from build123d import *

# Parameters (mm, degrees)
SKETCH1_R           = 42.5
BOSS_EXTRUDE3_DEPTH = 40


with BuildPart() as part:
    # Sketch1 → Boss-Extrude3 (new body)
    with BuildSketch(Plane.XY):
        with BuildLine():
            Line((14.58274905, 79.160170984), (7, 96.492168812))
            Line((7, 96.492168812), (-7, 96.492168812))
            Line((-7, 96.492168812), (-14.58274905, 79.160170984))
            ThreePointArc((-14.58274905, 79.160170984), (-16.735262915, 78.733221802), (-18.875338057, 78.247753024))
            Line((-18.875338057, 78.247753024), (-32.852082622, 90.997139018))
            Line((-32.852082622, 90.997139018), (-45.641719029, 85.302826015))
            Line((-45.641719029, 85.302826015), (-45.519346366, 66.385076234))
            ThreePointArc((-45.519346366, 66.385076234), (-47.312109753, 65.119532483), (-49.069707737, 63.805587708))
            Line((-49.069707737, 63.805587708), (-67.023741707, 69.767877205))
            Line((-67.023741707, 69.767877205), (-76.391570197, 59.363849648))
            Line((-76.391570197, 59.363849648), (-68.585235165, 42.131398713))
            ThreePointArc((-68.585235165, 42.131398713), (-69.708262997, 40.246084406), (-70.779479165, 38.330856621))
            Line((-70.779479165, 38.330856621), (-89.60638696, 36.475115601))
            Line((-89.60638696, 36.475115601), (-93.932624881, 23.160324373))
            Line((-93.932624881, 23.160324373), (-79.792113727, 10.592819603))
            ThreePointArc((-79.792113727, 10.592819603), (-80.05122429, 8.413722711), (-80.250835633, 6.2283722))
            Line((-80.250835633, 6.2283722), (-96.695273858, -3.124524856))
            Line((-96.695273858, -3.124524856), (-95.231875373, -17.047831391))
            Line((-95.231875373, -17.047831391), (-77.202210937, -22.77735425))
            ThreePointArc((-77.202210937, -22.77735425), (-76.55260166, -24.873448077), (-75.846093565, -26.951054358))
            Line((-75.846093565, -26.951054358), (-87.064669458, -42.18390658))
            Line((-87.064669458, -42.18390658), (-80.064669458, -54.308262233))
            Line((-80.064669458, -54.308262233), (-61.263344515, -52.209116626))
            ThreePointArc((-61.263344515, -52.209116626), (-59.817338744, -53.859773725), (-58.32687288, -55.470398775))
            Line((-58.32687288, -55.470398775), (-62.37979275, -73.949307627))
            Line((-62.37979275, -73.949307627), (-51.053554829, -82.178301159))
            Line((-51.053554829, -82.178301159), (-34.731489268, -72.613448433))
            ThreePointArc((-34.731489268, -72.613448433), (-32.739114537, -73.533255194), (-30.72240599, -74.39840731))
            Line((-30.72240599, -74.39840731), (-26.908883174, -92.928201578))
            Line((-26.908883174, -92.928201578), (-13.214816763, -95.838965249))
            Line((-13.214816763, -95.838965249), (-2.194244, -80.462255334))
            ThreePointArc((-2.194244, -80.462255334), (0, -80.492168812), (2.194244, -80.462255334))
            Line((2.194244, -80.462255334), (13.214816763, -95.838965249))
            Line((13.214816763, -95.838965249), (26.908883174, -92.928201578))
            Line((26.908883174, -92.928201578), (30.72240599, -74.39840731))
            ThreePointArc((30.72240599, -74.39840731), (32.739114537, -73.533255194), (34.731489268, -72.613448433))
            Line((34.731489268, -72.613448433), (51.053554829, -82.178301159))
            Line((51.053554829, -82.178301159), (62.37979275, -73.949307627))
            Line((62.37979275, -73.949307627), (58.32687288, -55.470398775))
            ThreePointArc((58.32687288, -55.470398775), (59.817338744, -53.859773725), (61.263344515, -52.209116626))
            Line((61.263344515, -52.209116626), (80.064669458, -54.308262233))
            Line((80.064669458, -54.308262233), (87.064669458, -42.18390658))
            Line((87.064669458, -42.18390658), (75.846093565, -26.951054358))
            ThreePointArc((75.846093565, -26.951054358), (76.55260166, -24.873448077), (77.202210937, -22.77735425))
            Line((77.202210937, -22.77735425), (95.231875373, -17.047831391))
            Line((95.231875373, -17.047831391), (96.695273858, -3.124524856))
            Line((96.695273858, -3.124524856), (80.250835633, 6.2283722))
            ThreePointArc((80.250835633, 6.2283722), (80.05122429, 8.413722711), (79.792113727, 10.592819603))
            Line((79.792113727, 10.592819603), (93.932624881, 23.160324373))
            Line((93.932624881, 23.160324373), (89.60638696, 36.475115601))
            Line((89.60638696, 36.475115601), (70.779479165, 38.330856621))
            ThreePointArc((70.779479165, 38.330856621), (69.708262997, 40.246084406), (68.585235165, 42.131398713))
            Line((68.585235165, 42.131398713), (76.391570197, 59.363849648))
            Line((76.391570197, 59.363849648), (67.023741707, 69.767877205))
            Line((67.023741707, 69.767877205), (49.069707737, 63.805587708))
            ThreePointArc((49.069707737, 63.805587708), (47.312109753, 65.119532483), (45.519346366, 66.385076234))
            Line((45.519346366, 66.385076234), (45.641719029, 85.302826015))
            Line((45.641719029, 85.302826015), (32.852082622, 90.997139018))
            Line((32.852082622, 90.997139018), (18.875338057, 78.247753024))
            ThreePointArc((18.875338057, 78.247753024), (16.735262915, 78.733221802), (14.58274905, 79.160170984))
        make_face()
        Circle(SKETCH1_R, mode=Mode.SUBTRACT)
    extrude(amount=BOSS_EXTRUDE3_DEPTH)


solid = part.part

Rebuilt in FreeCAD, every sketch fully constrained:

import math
import FreeCAD as App
import Part
import Sketcher

V = App.Vector
Q = App.Units.Quantity

doc = App.newDocument("Part")
body = doc.addObject("PartDesign::Body", "Body")

# Sketch on XY plane
sketch1 = doc.addObject("Sketcher::SketchObject", "Sketch")
body.addObject(sketch1)
sketch1.AttachmentSupport = (doc.XY_Plane, [""])
sketch1.MapMode = "FlatFace"
sketch1.addGeometry(Part.LineSegment(V(14.582749, 79.160171, 0), V(7, 96.492169, 0)), False)
sketch1.addGeometry(Part.LineSegment(V(7, 96.492169, 0), V(-7, 96.492169, 0)), False)
sketch1.addGeometry(Part.LineSegment(V(-7, 96.492169, 0), V(-14.582749, 79.160171, 0)), False)
sketch1.addGeometry(Part.ArcOfCircle(Part.Circle(V(0, 0.000001, 0), V(0, 0, 1), 80.492167), math.radians(100.437904), math.radians(103.562096)), False)
sketch1.addGeometry(Part.LineSegment(V(-18.875338, 78.247753, 0), V(-32.852083, 90.997139, 0)), False)
sketch1.addGeometry(Part.LineSegment(V(-32.852083, 90.997139, 0), V(-45.641719, 85.302826, 0)), False)
sketch1.addGeometry(Part.LineSegment(V(-45.641719, 85.302826, 0), V(-45.519346, 66.385076, 0)), False)
sketch1.addGeometry(Part.ArcOfCircle(Part.Circle(V(0.000001, -0.000001, 0), V(0, 0, 1), 80.49217), math.radians(124.437904), math.radians(127.562096)), False)
sketch1.addGeometry(Part.LineSegment(V(-49.069708, 63.805588, 0), V(-67.023742, 69.767877, 0)), False)
sketch1.addGeometry(Part.LineSegment(V(-67.023742, 69.767877, 0), V(-76.39157, 59.36385, 0)), False)
sketch1.addGeometry(Part.LineSegment(V(-76.39157, 59.36385, 0), V(-68.585235, 42.131399, 0)), False)
sketch1.addGeometry(Part.ArcOfCircle(Part.Circle(V(0.000001, -0.000001, 0), V(0, 0, 1), 80.49217), math.radians(148.437904), math.radians(151.562096)), False)
sketch1.addGeometry(Part.LineSegment(V(-70.779479, 38.330857, 0), V(-89.606387, 36.475116, 0)), False)
sketch1.addGeometry(Part.LineSegment(V(-89.606387, 36.475116, 0), V(-93.932625, 23.160324, 0)), False)
sketch1.addGeometry(Part.LineSegment(V(-93.932625, 23.160324, 0), V(-79.792114, 10.59282, 0)), False)
sketch1.addGeometry(Part.ArcOfCircle(Part.Circle(V(-0.000001, 0, 0), V(0, 0, 1), 80.492168), math.radians(172.437904), math.radians(175.562096)), False)
sketch1.addGeometry(Part.LineSegment(V(-80.250836, 6.228372, 0), V(-96.695274, -3.124525, 0)), False)
sketch1.addGeometry(Part.LineSegment(V(-96.695274, -3.124525, 0), V(-95.231875, -17.047831, 0)), False)
sketch1.addGeometry(Part.LineSegment(V(-95.231875, -17.047831, 0), V(-77.202211, -22.777354, 0)), False)
sketch1.addGeometry(Part.ArcOfCircle(Part.Circle(V(0, 0, 0), V(0, 0, 1), 80.492168), math.radians(-163.562096), math.radians(-160.437904)), False)
sketch1.addGeometry(Part.LineSegment(V(-75.846094, -26.951054, 0), V(-87.064669, -42.183907, 0)), False)
sketch1.addGeometry(Part.LineSegment(V(-87.064669, -42.183907, 0), V(-80.064669, -54.308262, 0)), False)
sketch1.addGeometry(Part.LineSegment(V(-80.064669, -54.308262, 0), V(-61.263345, -52.209117, 0)), False)
sketch1.addGeometry(Part.ArcOfCircle(Part.Circle(V(0, 0, 0), V(0, 0, 1), 80.492169), math.radians(-139.562096), math.radians(-136.437904)), False)
sketch1.addGeometry(Part.LineSegment(V(-58.326873, -55.470399, 0), V(-62.379793, -73.949308, 0)), False)
sketch1.addGeometry(Part.LineSegment(V(-62.379793, -73.949308, 0), V(-51.053555, -82.178301, 0)), False)
sketch1.addGeometry(Part.LineSegment(V(-51.053555, -82.178301, 0), V(-34.731489, -72.613448, 0)), False)
sketch1.addGeometry(Part.ArcOfCircle(Part.Circle(V(0, 0, 0), V(0, 0, 1), 80.492169), math.radians(-115.562096), math.radians(-112.437904)), False)
sketch1.addGeometry(Part.LineSegment(V(-30.722406, -74.398407, 0), V(-26.908883, -92.928202, 0)), False)
sketch1.addGeometry(Part.LineSegment(V(-26.908883, -92.928202, 0), V(-13.214817, -95.838965, 0)), False)
sketch1.addGeometry(Part.LineSegment(V(-13.214817, -95.838965, 0), V(-2.194244, -80.462255, 0)), False)
sketch1.addGeometry(Part.ArcOfCircle(Part.Circle(V(0, 0.000002, 0), V(0, 0, 1), 80.492171), math.radians(-91.562096), math.radians(-88.437904)), False)
sketch1.addGeometry(Part.LineSegment(V(2.194244, -80.462255, 0), V(13.214817, -95.838965, 0)), False)
sketch1.addGeometry(Part.LineSegment(V(13.214817, -95.838965, 0), V(26.908883, -92.928202, 0)), False)
sketch1.addGeometry(Part.LineSegment(V(26.908883, -92.928202, 0), V(30.722406, -74.398407, 0)), False)
sketch1.addGeometry(Part.ArcOfCircle(Part.Circle(V(0, 0, 0), V(0, 0, 1), 80.492169), math.radians(-67.562096), math.radians(-64.437904)), False)
sketch1.addGeometry(Part.LineSegment(V(34.731489, -72.613448, 0), V(51.053555, -82.178301, 0)), False)
sketch1.addGeometry(Part.LineSegment(V(51.053555, -82.178301, 0), V(62.379793, -73.949308, 0)), False)
sketch1.addGeometry(Part.LineSegment(V(62.379793, -73.949308, 0), V(58.326873, -55.470399, 0)), False)
sketch1.addGeometry(Part.ArcOfCircle(Part.Circle(V(0, 0, 0), V(0, 0, 1), 80.492169), math.radians(-43.562096), math.radians(-40.437904)), False)
sketch1.addGeometry(Part.LineSegment(V(61.263345, -52.209117, 0), V(80.064669, -54.308262, 0)), False)
sketch1.addGeometry(Part.LineSegment(V(80.064669, -54.308262, 0), V(87.064669, -42.183907, 0)), False)
sketch1.addGeometry(Part.LineSegment(V(87.064669, -42.183907, 0), V(75.846094, -26.951054, 0)), False)
sketch1.addGeometry(Part.ArcOfCircle(Part.Circle(V(0, 0, 0), V(0, 0, 1), 80.492168), math.radians(-19.562096), math.radians(-16.437904)), False)
sketch1.addGeometry(Part.LineSegment(V(77.202211, -22.777354, 0), V(95.231875, -17.047831, 0)), False)
sketch1.addGeometry(Part.LineSegment(V(95.231875, -17.047831, 0), V(96.695274, -3.124525, 0)), False)
sketch1.addGeometry(Part.LineSegment(V(96.695274, -3.124525, 0), V(80.250836, 6.228372, 0)), False)
sketch1.addGeometry(Part.ArcOfCircle(Part.Circle(V(0.000001, 0, 0), V(0, 0, 1), 80.492168), math.radians(4.437904), math.radians(7.562096)), False)
sketch1.addGeometry(Part.LineSegment(V(79.792114, 10.59282, 0), V(93.932625, 23.160324, 0)), False)
sketch1.addGeometry(Part.LineSegment(V(93.932625, 23.160324, 0), V(89.606387, 36.475116, 0)), False)
sketch1.addGeometry(Part.LineSegment(V(89.606387, 36.475116, 0), V(70.779479, 38.330857, 0)), False)
sketch1.addGeometry(Part.ArcOfCircle(Part.Circle(V(-0.000001, -0.000001, 0), V(0, 0, 1), 80.49217), math.radians(28.437904), math.radians(31.562096)), False)
sketch1.addGeometry(Part.LineSegment(V(68.585235, 42.131399, 0), V(76.39157, 59.36385, 0)), False)
sketch1.addGeometry(Part.LineSegment(V(76.39157, 59.36385, 0), V(67.023742, 69.767877, 0)), False)
sketch1.addGeometry(Part.LineSegment(V(67.023742, 69.767877, 0), V(49.069708, 63.805588, 0)), False)
sketch1.addGeometry(Part.ArcOfCircle(Part.Circle(V(-0.000001, -0.000001, 0), V(0, 0, 1), 80.49217), math.radians(52.437904), math.radians(55.562096)), False)
sketch1.addGeometry(Part.LineSegment(V(45.519346, 66.385076, 0), V(45.641719, 85.302826, 0)), False)
sketch1.addGeometry(Part.LineSegment(V(45.641719, 85.302826, 0), V(32.852083, 90.997139, 0)), False)
sketch1.addGeometry(Part.LineSegment(V(32.852083, 90.997139, 0), V(18.875338, 78.247753, 0)), False)
sketch1.addGeometry(Part.ArcOfCircle(Part.Circle(V(0, 0.000001, 0), V(0, 0, 1), 80.492167), math.radians(76.437904), math.radians(79.562096)), False)
sketch1.addGeometry(Part.Circle(V(0, 0, 0), V(0, 0, 1), 42.5), False)
sketch1.addConstraint(Sketcher.Constraint("Coincident", 0, 2, 1, 1))
sketch1.addConstraint(Sketcher.Constraint("Coincident", 1, 2, 2, 1))
sketch1.addConstraint(Sketcher.Constraint("Coincident", 2, 2, 3, 1))
sketch1.addConstraint(Sketcher.Constraint("Coincident", 3, 2, 4, 1))
sketch1.addConstraint(Sketcher.Constraint("Coincident", 4, 2, 5, 1))
sketch1.addConstraint(Sketcher.Constraint("Coincident", 5, 2, 6, 1))
sketch1.addConstraint(Sketcher.Constraint("Coincident", 6, 2, 7, 1))
sketch1.addConstraint(Sketcher.Constraint("Coincident", 7, 2, 8, 1))
sketch1.addConstraint(Sketcher.Constraint("Coincident", 8, 2, 9, 1))
sketch1.addConstraint(Sketcher.Constraint("Coincident", 9, 2, 10, 1))
sketch1.addConstraint(Sketcher.Constraint("Coincident", 10, 2, 11, 1))
sketch1.addConstraint(Sketcher.Constraint("Coincident", 11, 2, 12, 1))
sketch1.addConstraint(Sketcher.Constraint("Coincident", 12, 2, 13, 1))
sketch1.addConstraint(Sketcher.Constraint("Coincident", 13, 2, 14, 1))
sketch1.addConstraint(Sketcher.Constraint("Coincident", 14, 2, 15, 1))
sketch1.addConstraint(Sketcher.Constraint("Coincident", 15, 2, 16, 1))
sketch1.addConstraint(Sketcher.Constraint("Coincident", 16, 2, 17, 1))
sketch1.addConstraint(Sketcher.Constraint("Coincident", 17, 2, 18, 1))
sketch1.addConstraint(Sketcher.Constraint("Coincident", 18, 2, 19, 1))
sketch1.addConstraint(Sketcher.Constraint("Coincident", 19, 2, 20, 1))
sketch1.addConstraint(Sketcher.Constraint("Coincident", 20, 2, 21, 1))
sketch1.addConstraint(Sketcher.Constraint("Coincident", 21, 2, 22, 1))
sketch1.addConstraint(Sketcher.Constraint("Coincident", 22, 2, 23, 1))
sketch1.addConstraint(Sketcher.Constraint("Coincident", 23, 2, 24, 1))
sketch1.addConstraint(Sketcher.Constraint("Coincident", 24, 2, 25, 1))
sketch1.addConstraint(Sketcher.Constraint("Coincident", 25, 2, 26, 1))
sketch1.addConstraint(Sketcher.Constraint("Coincident", 26, 2, 27, 1))
sketch1.addConstraint(Sketcher.Constraint("Coincident", 27, 2, 28, 1))
sketch1.addConstraint(Sketcher.Constraint("Coincident", 28, 2, 29, 1))
sketch1.addConstraint(Sketcher.Constraint("Coincident", 29, 2, 30, 1))
sketch1.addConstraint(Sketcher.Constraint("Coincident", 30, 2, 31, 1))
sketch1.addConstraint(Sketcher.Constraint("Coincident", 31, 2, 32, 1))
sketch1.addConstraint(Sketcher.Constraint("Coincident", 32, 2, 33, 1))
sketch1.addConstraint(Sketcher.Constraint("Coincident", 33, 2, 34, 1))
sketch1.addConstraint(Sketcher.Constraint("Coincident", 34, 2, 35, 1))
sketch1.addConstraint(Sketcher.Constraint("Coincident", 35, 2, 36, 1))
sketch1.addConstraint(Sketcher.Constraint("Coincident", 36, 2, 37, 1))
sketch1.addConstraint(Sketcher.Constraint("Coincident", 37, 2, 38, 1))
sketch1.addConstraint(Sketcher.Constraint("Coincident", 38, 2, 39, 1))
sketch1.addConstraint(Sketcher.Constraint("Coincident", 39, 2, 40, 1))
sketch1.addConstraint(Sketcher.Constraint("Coincident", 40, 2, 41, 1))
sketch1.addConstraint(Sketcher.Constraint("Coincident", 41, 2, 42, 1))
sketch1.addConstraint(Sketcher.Constraint("Coincident", 42, 2, 43, 1))
sketch1.addConstraint(Sketcher.Constraint("Coincident", 43, 2, 44, 1))
sketch1.addConstraint(Sketcher.Constraint("Coincident", 44, 2, 45, 1))
sketch1.addConstraint(Sketcher.Constraint("Coincident", 45, 2, 46, 1))
sketch1.addConstraint(Sketcher.Constraint("Coincident", 46, 2, 47, 1))
sketch1.addConstraint(Sketcher.Constraint("Coincident", 47, 2, 48, 1))
sketch1.addConstraint(Sketcher.Constraint("Coincident", 48, 2, 49, 1))
sketch1.addConstraint(Sketcher.Constraint("Coincident", 49, 2, 50, 1))
sketch1.addConstraint(Sketcher.Constraint("Coincident", 50, 2, 51, 1))
sketch1.addConstraint(Sketcher.Constraint("Coincident", 51, 2, 52, 1))
sketch1.addConstraint(Sketcher.Constraint("Coincident", 52, 2, 53, 1))
sketch1.addConstraint(Sketcher.Constraint("Coincident", 53, 2, 54, 1))
sketch1.addConstraint(Sketcher.Constraint("Coincident", 54, 2, 55, 1))
sketch1.addConstraint(Sketcher.Constraint("Coincident", 55, 2, 56, 1))
sketch1.addConstraint(Sketcher.Constraint("Coincident", 56, 2, 57, 1))
sketch1.addConstraint(Sketcher.Constraint("Coincident", 57, 2, 58, 1))
sketch1.addConstraint(Sketcher.Constraint("Coincident", 58, 2, 59, 1))
sketch1.addConstraint(Sketcher.Constraint("Coincident", 59, 2, 0, 1))
sketch1.addConstraint(Sketcher.Constraint("Horizontal", 1))
sketch1.addConstraint(Sketcher.Constraint("Coincident", 3, 3, -1, 1))
sketch1.addConstraint(Sketcher.Constraint("Coincident", 7, 3, -1, 1))
sketch1.addConstraint(Sketcher.Constraint("Coincident", 11, 3, -1, 1))
sketch1.addConstraint(Sketcher.Constraint("Coincident", 15, 3, -1, 1))
sketch1.addConstraint(Sketcher.Constraint("Coincident", 19, 3, -1, 1))
sketch1.addConstraint(Sketcher.Constraint("Coincident", 23, 3, -1, 1))
sketch1.addConstraint(Sketcher.Constraint("Coincident", 27, 3, -1, 1))
sketch1.addConstraint(Sketcher.Constraint("Coincident", 31, 3, -1, 1))
sketch1.addConstraint(Sketcher.Constraint("Coincident", 35, 3, -1, 1))
sketch1.addConstraint(Sketcher.Constraint("Coincident", 39, 3, -1, 1))
sketch1.addConstraint(Sketcher.Constraint("Coincident", 43, 3, -1, 1))
sketch1.addConstraint(Sketcher.Constraint("Coincident", 47, 3, -1, 1))
sketch1.addConstraint(Sketcher.Constraint("Coincident", 51, 3, -1, 1))
sketch1.addConstraint(Sketcher.Constraint("Coincident", 55, 3, -1, 1))
sketch1.addConstraint(Sketcher.Constraint("Coincident", 59, 3, -1, 1))
sketch1.addConstraint(Sketcher.Constraint("Coincident", 60, 3, -1, 1))
sketch1.addConstraint(Sketcher.Constraint("Equal", 7, 11))
sketch1.addConstraint(Sketcher.Constraint("Equal", 3, 15))
sketch1.addConstraint(Sketcher.Constraint("Equal", 15, 19))
sketch1.addConstraint(Sketcher.Constraint("Equal", 19, 23))
sketch1.addConstraint(Sketcher.Constraint("Equal", 23, 27))
sketch1.addConstraint(Sketcher.Constraint("Equal", 27, 31))
sketch1.addConstraint(Sketcher.Constraint("Equal", 31, 35))
sketch1.addConstraint(Sketcher.Constraint("Equal", 35, 39))
sketch1.addConstraint(Sketcher.Constraint("Equal", 39, 43))
sketch1.addConstraint(Sketcher.Constraint("Equal", 43, 47))
sketch1.addConstraint(Sketcher.Constraint("Equal", 43, 51))
sketch1.addConstraint(Sketcher.Constraint("Equal", 51, 55))
sketch1.addConstraint(Sketcher.Constraint("Equal", 47, 59))
sketch1.addConstraint(Sketcher.Constraint("Symmetric", 29, 2, 32, 2, -2))
sketch1.addConstraint(Sketcher.Constraint("Symmetric", 28, 2, 33, 2, -2))
sketch1.addConstraint(Sketcher.Constraint("Symmetric", 25, 2, 36, 2, -2))
sketch1.addConstraint(Sketcher.Constraint("Symmetric", 24, 2, 37, 2, -2))
sketch1.addConstraint(Sketcher.Constraint("Symmetric", 21, 2, 40, 2, -2))
sketch1.addConstraint(Sketcher.Constraint("Symmetric", 20, 2, 41, 2, -2))
sketch1.addConstraint(Sketcher.Constraint("Symmetric", 17, 2, 44, 2, -2))
sketch1.addConstraint(Sketcher.Constraint("Symmetric", 16, 2, 45, 2, -2))
sketch1.addConstraint(Sketcher.Constraint("Symmetric", 13, 2, 48, 2, -2))
sketch1.addConstraint(Sketcher.Constraint("Symmetric", 12, 2, 49, 2, -2))
sketch1.addConstraint(Sketcher.Constraint("Symmetric", 11, 2, 50, 2, -2))
sketch1.addConstraint(Sketcher.Constraint("Symmetric", 9, 2, 52, 2, -2))
sketch1.addConstraint(Sketcher.Constraint("Symmetric", 8, 2, 53, 2, -2))
sketch1.addConstraint(Sketcher.Constraint("Symmetric", 5, 2, 56, 2, -2))
sketch1.addConstraint(Sketcher.Constraint("Symmetric", 4, 2, 57, 2, -2))
sketch1.addConstraint(Sketcher.Constraint("Horizontal", 30, 2, 31, 2))
sketch1.addConstraint(Sketcher.Constraint("Horizontal", 27, 2, 34, 2))
sketch1.addConstraint(Sketcher.Constraint("Horizontal", 26, 2, 35, 2))
sketch1.addConstraint(Sketcher.Constraint("Horizontal", 23, 2, 38, 2))
sketch1.addConstraint(Sketcher.Constraint("Horizontal", 22, 2, 39, 2))
sketch1.addConstraint(Sketcher.Constraint("Horizontal", 19, 2, 42, 2))
sketch1.addConstraint(Sketcher.Constraint("Horizontal", 18, 2, 43, 2))
sketch1.addConstraint(Sketcher.Constraint("Horizontal", 15, 2, 46, 2))
sketch1.addConstraint(Sketcher.Constraint("Horizontal", 14, 2, 47, 2))
sketch1.addConstraint(Sketcher.Constraint("Horizontal", 10, 2, 51, 2))
sketch1.addConstraint(Sketcher.Constraint("Horizontal", 7, 2, 54, 2))
sketch1.addConstraint(Sketcher.Constraint("Horizontal", 6, 2, 55, 2))
sketch1.addConstraint(Sketcher.Constraint("Horizontal", 3, 2, 58, 2))
sketch1.addConstraint(Sketcher.Constraint("Horizontal", 2, 2, 59, 2))
sketch1.addConstraint(Sketcher.Constraint("Equal", 0, 2))
sketch1.addConstraint(Sketcher.Constraint("Equal", 2, 4))
sketch1.addConstraint(Sketcher.Constraint("Equal", 4, 6))
sketch1.addConstraint(Sketcher.Constraint("Equal", 6, 8))
sketch1.addConstraint(Sketcher.Constraint("Equal", 5, 9))
sketch1.addConstraint(Sketcher.Constraint("Equal", 8, 10))
sketch1.addConstraint(Sketcher.Constraint("Equal", 10, 12))
sketch1.addConstraint(Sketcher.Constraint("Equal", 9, 13))
sketch1.addConstraint(Sketcher.Constraint("Equal", 12, 14))
sketch1.addConstraint(Sketcher.Constraint("Equal", 14, 16))
sketch1.addConstraint(Sketcher.Constraint("Equal", 13, 17))
sketch1.addConstraint(Sketcher.Constraint("Equal", 16, 18))
sketch1.addConstraint(Sketcher.Constraint("Equal", 18, 20))
sketch1.addConstraint(Sketcher.Constraint("Equal", 17, 21))
sketch1.addConstraint(Sketcher.Constraint("Equal", 20, 22))
sketch1.addConstraint(Sketcher.Constraint("Equal", 22, 24))
sketch1.addConstraint(Sketcher.Constraint("Equal", 21, 25))
sketch1.addConstraint(Sketcher.Constraint("Equal", 24, 26))
sketch1.addConstraint(Sketcher.Constraint("Equal", 26, 28))
sketch1.addConstraint(Sketcher.Constraint("Equal", 25, 29))
sketch1.addConstraint(Sketcher.Constraint("Equal", 28, 30))
sketch1.addConstraint(Sketcher.Constraint("Diameter", 60, 85.0))
sketch1.addConstraint(Sketcher.Constraint("DistanceX", 1, 2, 1, 1, 14.0))
sketch1.addConstraint(Sketcher.Constraint("Angle", 5, Q("-156 deg")))
sketch1.addConstraint(Sketcher.Constraint("Angle", 9, Q("-132 deg")))
sketch1.addConstraint(Sketcher.Constraint("Angle", 13, Q("-108 deg")))
sketch1.addConstraint(Sketcher.Constraint("Angle", 17, Q("-84 deg")))
sketch1.addConstraint(Sketcher.Constraint("Angle", 21, Q("-60 deg")))
sketch1.addConstraint(Sketcher.Constraint("Angle", 25, Q("-36 deg")))
sketch1.addConstraint(Sketcher.Constraint("Angle", 29, Q("-12 deg")))
sketch1.addConstraint(Sketcher.Constraint("Distance", 5, 14.0))
sketch1.addConstraint(Sketcher.Constraint("Radius", 7, 80.49217))
sketch1.addConstraint(Sketcher.Constraint("DistanceY", -1, 1, 10, 2, 42.131399))
sketch1.addConstraint(Sketcher.Constraint("DistanceY", 23, 2, -1, 1, 55.470399))
sketch1.addConstraint(Sketcher.Constraint("DistanceY", 25, 2, -1, 1, 82.178301))
sketch1.addConstraint(Sketcher.Constraint("DistanceY", 28, 2, -1, 1, 92.928202))
sketch1.addConstraint(Sketcher.Constraint("DistanceY", -1, 1, 0, 2, 96.492169))
sketch1.addConstraint(Sketcher.Constraint("DistanceX", 2, 2, -1, 1, 14.582749))
sketch1.addConstraint(Sketcher.Constraint("DistanceX", 3, 2, -1, 1, 18.875338))
sketch1.addConstraint(Sketcher.Constraint("DistanceY", -1, 1, 4, 2, 90.997139))
sketch1.addConstraint(Sketcher.Constraint("DistanceX", 8, 2, -1, 1, 67.023742))
sketch1.addConstraint(Sketcher.Constraint("DistanceX", 11, 2, -1, 1, 70.779479))
sketch1.addConstraint(Sketcher.Constraint("DistanceY", -1, 1, 14, 2, 10.59282))
sketch1.addConstraint(Sketcher.Constraint("DistanceY", 17, 2, -1, 1, 17.047831))
sketch1.addConstraint(Sketcher.Constraint("DistanceX", 18, 2, -1, 1, 77.202211))
sketch1.addConstraint(Sketcher.Constraint("DistanceX", 20, 2, -1, 1, 87.064669))
sketch1.addConstraint(Sketcher.Constraint("DistanceX", 19, 2, -1, 1, 75.846094))
sketch1.addConstraint(Sketcher.Constraint("DistanceX", 28, 2, -1, 1, 26.908883))
pad1 = doc.addObject("PartDesign::Pad", "Pad")
body.addObject(pad1)
pad1.Profile = sketch1
pad1.Length = 40

doc.recompute()
